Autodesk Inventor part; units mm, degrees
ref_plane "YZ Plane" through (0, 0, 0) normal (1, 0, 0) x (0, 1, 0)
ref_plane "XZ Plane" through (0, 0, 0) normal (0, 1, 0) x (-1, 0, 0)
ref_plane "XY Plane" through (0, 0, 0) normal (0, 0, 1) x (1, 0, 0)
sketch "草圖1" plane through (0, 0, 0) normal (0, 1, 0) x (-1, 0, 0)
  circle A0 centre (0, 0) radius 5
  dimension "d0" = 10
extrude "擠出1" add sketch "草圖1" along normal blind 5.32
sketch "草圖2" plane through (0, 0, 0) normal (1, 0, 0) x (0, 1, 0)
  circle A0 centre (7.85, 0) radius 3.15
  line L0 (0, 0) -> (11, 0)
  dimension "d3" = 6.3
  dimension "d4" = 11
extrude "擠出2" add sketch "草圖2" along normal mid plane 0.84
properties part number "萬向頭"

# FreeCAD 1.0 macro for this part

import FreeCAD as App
import Part
import Sketcher

V = App.Vector

doc = App.newDocument("Part")
body = doc.addObject("PartDesign::Body", "Body")

# Sketch on XZ plane
sketch1 = body.newObject("Sketcher::SketchObject", "Sketch")
sketch1.AttachmentSupport = (doc.getObject("XZ_Plane"), [""])
sketch1.MapMode = "FlatFace"
sketch1.addGeometry(Part.Circle(V(0, 0, 0), V(0, 0, 1), 5), False)
sketch1.addConstraint([
    Sketcher.Constraint("Coincident", 0, 3, -1, 1),
    Sketcher.Constraint("Diameter", 0, 10.0),
])
pad1 = body.newObject("PartDesign::Pad", "Pad")
pad1.Profile = sketch1
pad1.Length = 5.32
pad1.Reversed = True

# Sketch on YZ plane
sketch2 = body.newObject("Sketcher::SketchObject", "Sketch001")
sketch2.AttachmentSupport = (doc.getObject("YZ_Plane"), [""])
sketch2.MapMode = "FlatFace"
sketch2.addGeometry(Part.Circle(V(7.85, 0, 0), V(0, 0, 1), 3.15), False)
sketch2.addConstraint([
    Sketcher.Constraint("PointOnObject", 0, 3, -1),
    Sketcher.Constraint("Diameter", 0, 6.3),
    Sketcher.Constraint("DistanceX", -1, 1, 0, 3, 7.85),
])
pad2 = body.newObject("PartDesign::Pad", "Pad001")
pad2.Profile = sketch2
pad2.Length = 0.84
pad2.Midplane = True

doc.recompute()
